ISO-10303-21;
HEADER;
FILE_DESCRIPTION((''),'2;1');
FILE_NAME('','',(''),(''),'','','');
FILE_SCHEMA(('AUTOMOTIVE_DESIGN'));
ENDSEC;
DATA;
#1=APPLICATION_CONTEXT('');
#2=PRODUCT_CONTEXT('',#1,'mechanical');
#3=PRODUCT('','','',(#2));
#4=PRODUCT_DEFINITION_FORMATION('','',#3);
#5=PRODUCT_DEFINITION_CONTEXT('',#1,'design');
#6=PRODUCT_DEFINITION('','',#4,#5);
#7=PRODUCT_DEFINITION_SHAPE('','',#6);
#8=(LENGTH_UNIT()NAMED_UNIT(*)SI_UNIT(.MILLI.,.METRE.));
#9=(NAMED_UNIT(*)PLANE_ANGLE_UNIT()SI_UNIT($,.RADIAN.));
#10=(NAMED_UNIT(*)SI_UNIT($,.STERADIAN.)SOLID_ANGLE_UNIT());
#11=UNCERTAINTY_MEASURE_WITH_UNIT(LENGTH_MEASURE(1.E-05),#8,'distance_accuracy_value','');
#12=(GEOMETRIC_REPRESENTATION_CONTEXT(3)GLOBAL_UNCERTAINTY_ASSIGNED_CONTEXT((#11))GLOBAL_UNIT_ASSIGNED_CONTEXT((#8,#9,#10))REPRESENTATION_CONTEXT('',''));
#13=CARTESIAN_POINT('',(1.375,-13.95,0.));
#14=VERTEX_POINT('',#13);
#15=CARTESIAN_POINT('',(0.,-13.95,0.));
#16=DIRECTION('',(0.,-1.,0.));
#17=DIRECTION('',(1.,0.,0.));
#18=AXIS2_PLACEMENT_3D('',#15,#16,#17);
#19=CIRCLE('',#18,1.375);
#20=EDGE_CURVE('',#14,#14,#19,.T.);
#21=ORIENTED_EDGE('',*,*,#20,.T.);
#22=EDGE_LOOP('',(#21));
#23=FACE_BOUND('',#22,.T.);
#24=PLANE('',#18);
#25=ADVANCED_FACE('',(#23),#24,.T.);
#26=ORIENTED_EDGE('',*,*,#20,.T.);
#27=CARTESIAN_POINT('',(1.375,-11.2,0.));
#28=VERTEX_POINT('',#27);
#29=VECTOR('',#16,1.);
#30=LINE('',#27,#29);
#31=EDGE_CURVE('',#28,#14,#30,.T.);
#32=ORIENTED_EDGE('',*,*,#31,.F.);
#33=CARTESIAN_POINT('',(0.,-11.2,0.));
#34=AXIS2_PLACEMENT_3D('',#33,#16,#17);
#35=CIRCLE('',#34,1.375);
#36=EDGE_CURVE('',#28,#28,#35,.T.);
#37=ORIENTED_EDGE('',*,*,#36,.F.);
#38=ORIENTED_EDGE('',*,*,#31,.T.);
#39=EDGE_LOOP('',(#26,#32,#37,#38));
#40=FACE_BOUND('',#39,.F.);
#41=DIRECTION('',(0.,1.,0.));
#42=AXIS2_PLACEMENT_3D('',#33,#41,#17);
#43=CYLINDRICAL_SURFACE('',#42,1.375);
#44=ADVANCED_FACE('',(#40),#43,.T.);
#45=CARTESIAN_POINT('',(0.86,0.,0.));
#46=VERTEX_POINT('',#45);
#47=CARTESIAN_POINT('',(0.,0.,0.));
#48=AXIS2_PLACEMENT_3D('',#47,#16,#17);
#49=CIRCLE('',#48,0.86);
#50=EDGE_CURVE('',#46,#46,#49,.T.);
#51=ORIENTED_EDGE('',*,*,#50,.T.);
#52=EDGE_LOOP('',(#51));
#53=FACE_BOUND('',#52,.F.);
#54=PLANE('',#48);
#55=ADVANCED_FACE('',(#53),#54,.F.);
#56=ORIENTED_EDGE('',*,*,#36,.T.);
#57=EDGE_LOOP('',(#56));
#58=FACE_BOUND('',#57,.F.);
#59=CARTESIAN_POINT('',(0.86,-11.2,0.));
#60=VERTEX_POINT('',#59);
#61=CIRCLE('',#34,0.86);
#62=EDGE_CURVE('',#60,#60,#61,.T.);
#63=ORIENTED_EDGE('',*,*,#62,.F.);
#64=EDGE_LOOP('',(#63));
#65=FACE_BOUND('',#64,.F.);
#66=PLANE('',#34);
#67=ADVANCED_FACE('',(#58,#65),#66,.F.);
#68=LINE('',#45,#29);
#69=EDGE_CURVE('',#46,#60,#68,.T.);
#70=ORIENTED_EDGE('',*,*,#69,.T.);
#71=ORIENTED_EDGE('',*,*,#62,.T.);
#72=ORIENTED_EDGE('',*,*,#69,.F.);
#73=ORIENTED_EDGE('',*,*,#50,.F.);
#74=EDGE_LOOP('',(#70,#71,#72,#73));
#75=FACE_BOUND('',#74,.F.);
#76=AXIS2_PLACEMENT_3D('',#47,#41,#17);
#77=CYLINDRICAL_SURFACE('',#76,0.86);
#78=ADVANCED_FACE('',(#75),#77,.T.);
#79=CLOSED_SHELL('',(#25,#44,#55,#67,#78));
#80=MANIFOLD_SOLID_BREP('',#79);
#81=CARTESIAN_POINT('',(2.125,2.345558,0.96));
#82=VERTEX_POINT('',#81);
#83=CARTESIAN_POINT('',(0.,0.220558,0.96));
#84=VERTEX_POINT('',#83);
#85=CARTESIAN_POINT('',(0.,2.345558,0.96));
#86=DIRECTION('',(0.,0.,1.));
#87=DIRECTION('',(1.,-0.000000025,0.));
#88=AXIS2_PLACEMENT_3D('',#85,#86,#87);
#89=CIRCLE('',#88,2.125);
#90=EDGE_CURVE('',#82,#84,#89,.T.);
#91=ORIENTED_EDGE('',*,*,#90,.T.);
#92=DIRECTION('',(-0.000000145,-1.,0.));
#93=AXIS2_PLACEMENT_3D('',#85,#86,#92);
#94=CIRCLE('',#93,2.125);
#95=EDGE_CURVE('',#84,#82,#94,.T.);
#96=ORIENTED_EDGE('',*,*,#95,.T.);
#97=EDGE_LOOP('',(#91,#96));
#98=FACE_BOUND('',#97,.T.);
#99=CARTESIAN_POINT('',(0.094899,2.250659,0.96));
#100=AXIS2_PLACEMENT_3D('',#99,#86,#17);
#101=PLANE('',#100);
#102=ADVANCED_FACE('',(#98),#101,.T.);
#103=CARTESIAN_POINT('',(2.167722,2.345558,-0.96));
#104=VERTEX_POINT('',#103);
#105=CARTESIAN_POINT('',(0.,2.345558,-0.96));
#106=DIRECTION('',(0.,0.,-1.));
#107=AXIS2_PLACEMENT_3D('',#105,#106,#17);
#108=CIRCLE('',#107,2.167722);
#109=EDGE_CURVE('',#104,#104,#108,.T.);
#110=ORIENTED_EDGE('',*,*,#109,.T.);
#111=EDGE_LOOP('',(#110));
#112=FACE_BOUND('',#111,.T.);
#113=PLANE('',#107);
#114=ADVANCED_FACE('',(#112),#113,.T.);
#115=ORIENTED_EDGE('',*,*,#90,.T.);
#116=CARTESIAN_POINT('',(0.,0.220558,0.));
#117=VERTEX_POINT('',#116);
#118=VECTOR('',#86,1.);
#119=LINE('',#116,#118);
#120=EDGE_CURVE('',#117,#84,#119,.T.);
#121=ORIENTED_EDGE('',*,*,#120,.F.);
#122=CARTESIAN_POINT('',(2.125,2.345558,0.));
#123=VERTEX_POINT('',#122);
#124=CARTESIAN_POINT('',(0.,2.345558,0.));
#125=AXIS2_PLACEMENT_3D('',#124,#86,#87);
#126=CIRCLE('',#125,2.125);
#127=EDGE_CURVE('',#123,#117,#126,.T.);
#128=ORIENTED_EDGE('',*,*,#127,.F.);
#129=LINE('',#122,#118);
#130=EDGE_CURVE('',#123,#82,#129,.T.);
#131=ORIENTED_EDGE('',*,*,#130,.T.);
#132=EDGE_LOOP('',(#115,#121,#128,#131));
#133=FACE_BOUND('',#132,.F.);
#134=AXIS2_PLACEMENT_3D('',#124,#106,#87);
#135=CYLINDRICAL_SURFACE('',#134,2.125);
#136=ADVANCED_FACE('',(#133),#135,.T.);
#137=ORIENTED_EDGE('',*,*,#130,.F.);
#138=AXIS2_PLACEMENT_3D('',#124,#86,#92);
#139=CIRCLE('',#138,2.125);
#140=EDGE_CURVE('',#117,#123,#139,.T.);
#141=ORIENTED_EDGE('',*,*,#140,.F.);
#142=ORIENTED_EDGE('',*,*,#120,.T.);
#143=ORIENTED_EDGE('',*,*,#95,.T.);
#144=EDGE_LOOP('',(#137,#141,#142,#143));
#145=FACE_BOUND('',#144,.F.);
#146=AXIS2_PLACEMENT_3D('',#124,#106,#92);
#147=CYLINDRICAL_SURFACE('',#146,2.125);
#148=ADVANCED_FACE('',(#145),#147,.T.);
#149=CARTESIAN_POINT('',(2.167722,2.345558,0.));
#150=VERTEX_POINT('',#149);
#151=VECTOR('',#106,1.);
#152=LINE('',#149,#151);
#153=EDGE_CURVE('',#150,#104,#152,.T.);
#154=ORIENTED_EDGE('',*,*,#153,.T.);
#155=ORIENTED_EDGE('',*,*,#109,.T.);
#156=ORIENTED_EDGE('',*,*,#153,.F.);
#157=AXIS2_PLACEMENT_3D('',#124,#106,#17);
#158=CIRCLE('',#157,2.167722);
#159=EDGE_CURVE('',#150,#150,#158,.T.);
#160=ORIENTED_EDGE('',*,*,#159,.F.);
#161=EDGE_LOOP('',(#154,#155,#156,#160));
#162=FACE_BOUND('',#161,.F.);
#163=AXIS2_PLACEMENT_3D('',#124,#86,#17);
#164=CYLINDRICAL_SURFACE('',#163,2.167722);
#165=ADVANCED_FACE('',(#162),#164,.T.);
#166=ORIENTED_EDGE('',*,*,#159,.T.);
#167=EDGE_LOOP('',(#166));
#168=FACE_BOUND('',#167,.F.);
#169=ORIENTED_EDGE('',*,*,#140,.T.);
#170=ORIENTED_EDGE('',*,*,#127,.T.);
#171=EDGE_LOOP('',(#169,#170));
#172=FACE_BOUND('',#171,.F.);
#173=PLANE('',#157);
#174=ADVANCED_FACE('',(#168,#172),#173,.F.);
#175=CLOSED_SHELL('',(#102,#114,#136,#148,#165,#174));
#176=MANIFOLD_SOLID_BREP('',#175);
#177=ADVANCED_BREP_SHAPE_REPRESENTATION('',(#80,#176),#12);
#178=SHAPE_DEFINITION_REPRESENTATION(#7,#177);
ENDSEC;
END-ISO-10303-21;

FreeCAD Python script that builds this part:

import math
import FreeCAD as App
import Part
import Sketcher
from FreeCAD import Vector

doc = App.newDocument("Part")
body = doc.addObject("PartDesign::Body", "Body")

sketch1 = body.newObject("Sketcher::SketchObject", "Sketch")
sketch1.AttachmentSupport = (doc.getObject("XZ_Plane"), [""])
sketch1.MapMode = "FlatFace"
sketch1.addGeometry(Part.Circle(Vector(0, 0, 0), Vector(0, 0, 1), 0.9), False)
sketch1.addConstraint([
    Sketcher.Constraint("Coincident", 0, 3, -1, 1),
    Sketcher.Constraint("Diameter", 0, 1.72),
])
pad1 = body.newObject("PartDesign::Pad", "Pad")
pad1.Profile = sketch1
pad1.Length = 11.2

sketch2 = body.newObject("Sketcher::SketchObject", "Sketch001")
sketch2.AttachmentSupport = (doc.getObject("XZ_Plane"), [""])
sketch2.MapMode = "FlatFace"
sketch2.AttachmentOffset = App.Placement(Vector(0, 0, 11.2), App.Rotation())
sketch2.addGeometry(Part.Circle(Vector(0, 0, 0), Vector(0, 0, 1), 1.4), False)
sketch2.addConstraint([
    Sketcher.Constraint("Coincident", 0, 3, -1, 1),
    Sketcher.Constraint("Diameter", 0, 2.75),
])
pad2 = body.newObject("PartDesign::Pad", "Pad001")
pad2.Profile = sketch2
pad2.Length = 2.75
body2 = doc.addObject("PartDesign::Body", "Body001")

sketch3 = body2.newObject("Sketcher::SketchObject", "Sketch002")
sketch3.AttachmentSupport = (doc.getObject("XY_Plane001"), [""])
sketch3.MapMode = "FlatFace"
sketch3.addGeometry([
    Part.ArcOfCircle(Part.Circle(Vector(0, 2.3, 0), Vector(0, 0, 1), 2.1), math.radians(-90), math.radians(0)),
    Part.ArcOfCircle(Part.Circle(Vector(0, 2.3, 0), Vector(0, 0, 1), 2.1), math.radians(0), math.radians(270)),
], False)
sketch3.addConstraint([
    Sketcher.Constraint("Tangent", 0, 1, 1, 2),
    Sketcher.Constraint("Coincident", 1, 1, 0, 2),
    Sketcher.Constraint("PointOnObject", 0, 3, -2),
    Sketcher.Constraint("PointOnObject", 0, 1, -2),
    Sketcher.Constraint("Horizontal", 0, 3, 1, 1),
    Sketcher.Constraint("Radius", 0, 2.125),
    Sketcher.Constraint("DistanceY", -1, 1, 1, 3, 2.345558),
])
pad3 = body2.newObject("PartDesign::Pad", "Pad002")
pad3.Profile = sketch3
pad3.Length = 0.96

sketch4 = body2.newObject("Sketcher::SketchObject", "Sketch003")
sketch4.AttachmentSupport = (doc.getObject("XY_Plane001"), [""])
sketch4.MapMode = "FlatFace"
sketch4.addGeometry(Part.Circle(Vector(0, 2.3, 0), Vector(0, 0, 1), 2.2), False)
sketch4.addConstraint([
    Sketcher.Constraint("PointOnObject", 0, 3, -2),
    Sketcher.Constraint("Diameter", 0, 4.335444),
    Sketcher.Constraint("DistanceY", -1, 1, 0, 3, 2.345558),
])
pad4 = body2.newObject("PartDesign::Pad", "Pad003")
pad4.Profile = sketch4
pad4.Length = 0.96
pad4.Reversed = True

doc.recompute()
